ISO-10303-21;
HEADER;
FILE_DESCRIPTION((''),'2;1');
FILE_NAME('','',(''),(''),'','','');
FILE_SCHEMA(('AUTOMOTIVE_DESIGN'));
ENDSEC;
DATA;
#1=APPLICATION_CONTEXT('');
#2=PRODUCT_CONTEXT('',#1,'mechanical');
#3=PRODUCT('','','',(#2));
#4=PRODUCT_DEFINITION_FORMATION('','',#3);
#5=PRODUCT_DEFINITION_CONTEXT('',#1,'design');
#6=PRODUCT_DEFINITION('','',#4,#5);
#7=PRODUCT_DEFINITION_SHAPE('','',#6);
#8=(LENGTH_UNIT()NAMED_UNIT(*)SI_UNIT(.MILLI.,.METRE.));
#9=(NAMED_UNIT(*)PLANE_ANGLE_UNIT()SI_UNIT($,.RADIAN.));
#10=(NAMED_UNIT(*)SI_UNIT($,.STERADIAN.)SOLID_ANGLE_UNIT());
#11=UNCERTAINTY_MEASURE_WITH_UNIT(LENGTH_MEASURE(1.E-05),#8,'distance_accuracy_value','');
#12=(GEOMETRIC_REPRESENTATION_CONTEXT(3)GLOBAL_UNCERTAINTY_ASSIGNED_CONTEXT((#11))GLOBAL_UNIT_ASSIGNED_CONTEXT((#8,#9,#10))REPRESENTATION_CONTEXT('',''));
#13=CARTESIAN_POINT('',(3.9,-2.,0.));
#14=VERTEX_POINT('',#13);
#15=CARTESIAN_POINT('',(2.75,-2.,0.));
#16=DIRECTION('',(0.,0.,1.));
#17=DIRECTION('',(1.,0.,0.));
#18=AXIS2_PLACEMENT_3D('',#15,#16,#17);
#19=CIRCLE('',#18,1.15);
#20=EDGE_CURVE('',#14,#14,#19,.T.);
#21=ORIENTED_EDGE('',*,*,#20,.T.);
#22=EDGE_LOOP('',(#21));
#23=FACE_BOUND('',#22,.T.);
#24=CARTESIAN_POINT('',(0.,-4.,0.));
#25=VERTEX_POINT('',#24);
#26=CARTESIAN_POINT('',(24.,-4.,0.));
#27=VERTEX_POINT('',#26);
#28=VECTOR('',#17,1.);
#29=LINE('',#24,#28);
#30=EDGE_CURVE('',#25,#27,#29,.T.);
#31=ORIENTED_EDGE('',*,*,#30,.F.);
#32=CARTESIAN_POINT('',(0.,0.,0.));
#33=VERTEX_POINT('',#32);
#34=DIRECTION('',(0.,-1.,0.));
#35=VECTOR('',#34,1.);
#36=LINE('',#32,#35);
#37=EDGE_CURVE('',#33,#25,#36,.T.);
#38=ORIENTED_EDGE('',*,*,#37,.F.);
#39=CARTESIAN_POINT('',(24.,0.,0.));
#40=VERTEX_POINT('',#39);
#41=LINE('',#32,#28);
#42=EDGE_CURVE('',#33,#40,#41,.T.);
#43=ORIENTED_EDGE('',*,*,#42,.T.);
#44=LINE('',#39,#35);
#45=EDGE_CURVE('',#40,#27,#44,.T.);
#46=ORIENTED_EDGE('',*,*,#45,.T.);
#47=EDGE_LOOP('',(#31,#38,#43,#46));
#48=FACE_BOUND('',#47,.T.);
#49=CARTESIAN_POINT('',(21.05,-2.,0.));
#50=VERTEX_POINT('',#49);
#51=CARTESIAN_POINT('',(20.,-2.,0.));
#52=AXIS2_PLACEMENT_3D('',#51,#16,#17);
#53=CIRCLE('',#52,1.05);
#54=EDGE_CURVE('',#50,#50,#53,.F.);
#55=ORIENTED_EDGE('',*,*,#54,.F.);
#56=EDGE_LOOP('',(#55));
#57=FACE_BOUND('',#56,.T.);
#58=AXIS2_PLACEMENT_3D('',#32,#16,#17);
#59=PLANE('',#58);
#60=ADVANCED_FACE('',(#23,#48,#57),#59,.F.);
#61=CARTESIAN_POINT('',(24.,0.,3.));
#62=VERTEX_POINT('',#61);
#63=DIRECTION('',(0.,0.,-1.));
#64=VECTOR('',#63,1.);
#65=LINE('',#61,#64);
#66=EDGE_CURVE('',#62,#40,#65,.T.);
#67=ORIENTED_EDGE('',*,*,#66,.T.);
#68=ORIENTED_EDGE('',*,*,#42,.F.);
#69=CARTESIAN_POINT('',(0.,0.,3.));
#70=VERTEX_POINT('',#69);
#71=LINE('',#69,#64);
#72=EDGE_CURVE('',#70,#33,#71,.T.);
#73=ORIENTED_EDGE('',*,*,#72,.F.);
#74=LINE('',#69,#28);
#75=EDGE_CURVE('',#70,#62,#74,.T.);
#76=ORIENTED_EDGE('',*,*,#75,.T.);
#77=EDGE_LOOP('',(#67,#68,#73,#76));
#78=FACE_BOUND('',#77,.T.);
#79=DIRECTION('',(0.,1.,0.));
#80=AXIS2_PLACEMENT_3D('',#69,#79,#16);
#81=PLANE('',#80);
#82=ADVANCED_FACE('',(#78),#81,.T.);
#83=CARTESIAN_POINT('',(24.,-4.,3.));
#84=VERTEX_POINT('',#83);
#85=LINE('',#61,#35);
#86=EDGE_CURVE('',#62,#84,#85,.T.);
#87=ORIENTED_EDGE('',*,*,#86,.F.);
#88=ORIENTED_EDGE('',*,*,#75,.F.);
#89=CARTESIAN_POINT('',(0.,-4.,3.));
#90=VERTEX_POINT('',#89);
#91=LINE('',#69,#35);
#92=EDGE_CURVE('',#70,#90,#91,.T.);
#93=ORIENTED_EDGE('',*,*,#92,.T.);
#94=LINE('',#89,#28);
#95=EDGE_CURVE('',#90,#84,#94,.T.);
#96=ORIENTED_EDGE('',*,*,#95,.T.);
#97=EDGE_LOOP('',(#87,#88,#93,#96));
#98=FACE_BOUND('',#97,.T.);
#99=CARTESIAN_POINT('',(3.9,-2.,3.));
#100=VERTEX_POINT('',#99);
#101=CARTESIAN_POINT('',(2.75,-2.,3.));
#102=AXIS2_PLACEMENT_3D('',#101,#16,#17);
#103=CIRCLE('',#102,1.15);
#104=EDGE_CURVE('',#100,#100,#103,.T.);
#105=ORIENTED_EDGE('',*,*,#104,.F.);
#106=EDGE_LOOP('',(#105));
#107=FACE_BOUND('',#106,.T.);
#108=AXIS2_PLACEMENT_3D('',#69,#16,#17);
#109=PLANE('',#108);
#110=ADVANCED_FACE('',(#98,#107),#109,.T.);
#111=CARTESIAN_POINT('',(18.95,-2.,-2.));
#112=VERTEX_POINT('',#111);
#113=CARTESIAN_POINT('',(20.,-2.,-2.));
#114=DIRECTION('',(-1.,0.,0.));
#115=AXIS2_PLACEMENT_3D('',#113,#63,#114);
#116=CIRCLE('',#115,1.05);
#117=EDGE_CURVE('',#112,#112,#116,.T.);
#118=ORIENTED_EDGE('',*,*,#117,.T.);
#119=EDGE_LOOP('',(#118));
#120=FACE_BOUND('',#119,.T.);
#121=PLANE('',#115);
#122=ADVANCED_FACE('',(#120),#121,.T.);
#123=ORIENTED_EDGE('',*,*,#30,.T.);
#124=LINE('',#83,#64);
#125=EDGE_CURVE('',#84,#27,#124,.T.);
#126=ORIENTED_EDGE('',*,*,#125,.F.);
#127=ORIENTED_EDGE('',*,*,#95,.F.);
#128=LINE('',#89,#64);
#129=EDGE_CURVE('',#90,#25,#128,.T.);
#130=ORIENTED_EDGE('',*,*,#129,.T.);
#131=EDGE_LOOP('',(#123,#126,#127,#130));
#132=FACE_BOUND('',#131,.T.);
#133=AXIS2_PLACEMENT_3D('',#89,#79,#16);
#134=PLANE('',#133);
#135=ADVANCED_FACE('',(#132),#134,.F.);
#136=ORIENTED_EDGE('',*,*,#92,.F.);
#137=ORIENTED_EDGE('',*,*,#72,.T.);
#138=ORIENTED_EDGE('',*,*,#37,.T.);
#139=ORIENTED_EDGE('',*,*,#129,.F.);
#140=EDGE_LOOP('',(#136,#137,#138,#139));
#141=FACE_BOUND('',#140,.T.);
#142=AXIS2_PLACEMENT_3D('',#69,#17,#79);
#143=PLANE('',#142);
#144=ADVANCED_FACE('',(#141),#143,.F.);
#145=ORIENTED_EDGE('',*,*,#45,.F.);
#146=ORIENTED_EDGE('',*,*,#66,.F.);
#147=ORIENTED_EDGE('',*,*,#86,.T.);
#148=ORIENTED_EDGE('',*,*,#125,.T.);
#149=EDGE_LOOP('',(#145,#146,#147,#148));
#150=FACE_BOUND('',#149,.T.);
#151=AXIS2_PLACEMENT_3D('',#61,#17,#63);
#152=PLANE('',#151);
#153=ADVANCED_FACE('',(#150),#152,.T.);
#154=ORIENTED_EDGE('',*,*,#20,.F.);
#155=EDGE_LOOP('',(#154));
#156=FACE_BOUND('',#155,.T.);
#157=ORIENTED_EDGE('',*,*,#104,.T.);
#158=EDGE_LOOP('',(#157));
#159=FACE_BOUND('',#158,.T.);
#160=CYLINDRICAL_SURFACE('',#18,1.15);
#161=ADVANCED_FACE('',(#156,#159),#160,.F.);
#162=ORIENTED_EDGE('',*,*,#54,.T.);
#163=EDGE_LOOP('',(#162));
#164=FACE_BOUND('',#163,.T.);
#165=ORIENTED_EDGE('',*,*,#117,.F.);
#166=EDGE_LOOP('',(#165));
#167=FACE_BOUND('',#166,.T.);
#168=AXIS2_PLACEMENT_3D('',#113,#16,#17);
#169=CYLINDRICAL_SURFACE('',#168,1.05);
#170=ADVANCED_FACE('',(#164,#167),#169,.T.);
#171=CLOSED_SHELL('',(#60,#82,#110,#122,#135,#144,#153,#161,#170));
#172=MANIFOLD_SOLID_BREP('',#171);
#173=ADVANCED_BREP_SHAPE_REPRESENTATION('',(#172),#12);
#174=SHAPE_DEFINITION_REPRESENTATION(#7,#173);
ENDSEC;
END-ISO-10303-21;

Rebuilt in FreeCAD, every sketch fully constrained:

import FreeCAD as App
import Part
import Sketcher

V = App.Vector


def add_polygon(sketch, points):
    """Adds a closed chain of lines whose ends are joined by coincident constraints."""
    first, n = sketch.GeometryCount, len(points)
    for a, b in zip(points, points[1:] + points[:1]):
        sketch.addGeometry(Part.LineSegment(App.Vector(*a, 0), App.Vector(*b, 0)), False)
    for i in range(n):
        sketch.addConstraint(Sketcher.Constraint("Coincident", first + i, 2, first + (i + 1) % n, 1))

doc = App.newDocument("Part")
body = doc.addObject("PartDesign::Body", "Body")

# Sketch on XY plane
sketch1 = doc.addObject("Sketcher::SketchObject", "Sketch")
body.addObject(sketch1)
sketch1.AttachmentSupport = (doc.XY_Plane, [""])
sketch1.MapMode = "FlatFace"
add_polygon(sketch1, [(0, 0), (0, -4), (24, -4), (24, 0)])  # lines 0-3
sketch1.addConstraint(Sketcher.Constraint("Vertical", 0))
sketch1.addConstraint(Sketcher.Constraint("Horizontal", 1))
sketch1.addConstraint(Sketcher.Constraint("Vertical", 2))
sketch1.addConstraint(Sketcher.Constraint("Horizontal", 3))
sketch1.addConstraint(Sketcher.Constraint("Coincident", 3, 2, -1, 1))
sketch1.addConstraint(Sketcher.Constraint("DistanceX", 1, 1, 1, 2, 24.0))
sketch1.addConstraint(Sketcher.Constraint("DistanceY", 0, 2, 0, 1, 4.0))
pad1 = doc.addObject("PartDesign::Pad", "Pad")
body.addObject(pad1)
pad1.Profile = sketch1
pad1.Length = 3

# Sketch on XY plane
sketch2 = doc.addObject("Sketcher::SketchObject", "Sketch001")
body.addObject(sketch2)
sketch2.AttachmentSupport = (doc.XY_Plane, [""])
sketch2.MapMode = "FlatFace"
sketch2.AttachmentOffset = App.Placement(V(0, 0, 3), App.Rotation())
sketch2.addGeometry(Part.Circle(V(2.75, -2, 0), V(0, 0, 1), 1.15), False)
sketch2.addConstraint(Sketcher.Constraint("Diameter", 0, 2.3))
sketch2.addConstraint(Sketcher.Constraint("DistanceY", 0, 3, -1, 1, 2.0))
sketch2.addConstraint(Sketcher.Constraint("DistanceX", -1, 1, 0, 3, 2.75))
pocket1 = doc.addObject("PartDesign::Pocket", "Pocket")
body.addObject(pocket1)
pocket1.Profile = sketch2
pocket1.Type = "ThroughAll"

# Sketch on XY plane
sketch3 = doc.addObject("Sketcher::SketchObject", "Sketch002")
body.addObject(sketch3)
sketch3.AttachmentSupport = (doc.XY_Plane, [""])
sketch3.MapMode = "FlatFace"
sketch3.addGeometry(Part.Circle(V(20, -2, 0), V(0, 0, 1), 1.05), False)
sketch3.addConstraint(Sketcher.Constraint("Diameter", 0, 2.1))
sketch3.addConstraint(Sketcher.Constraint("DistanceX", -1, 1, 0, 3, 20.0))
sketch3.addConstraint(Sketcher.Constraint("DistanceY", 0, 3, -1, 1, 2.0))
pad2 = doc.addObject("PartDesign::Pad", "Pad001")
body.addObject(pad2)
pad2.Profile = sketch3
pad2.Length = 2
pad2.Reversed = True

doc.recompute()
